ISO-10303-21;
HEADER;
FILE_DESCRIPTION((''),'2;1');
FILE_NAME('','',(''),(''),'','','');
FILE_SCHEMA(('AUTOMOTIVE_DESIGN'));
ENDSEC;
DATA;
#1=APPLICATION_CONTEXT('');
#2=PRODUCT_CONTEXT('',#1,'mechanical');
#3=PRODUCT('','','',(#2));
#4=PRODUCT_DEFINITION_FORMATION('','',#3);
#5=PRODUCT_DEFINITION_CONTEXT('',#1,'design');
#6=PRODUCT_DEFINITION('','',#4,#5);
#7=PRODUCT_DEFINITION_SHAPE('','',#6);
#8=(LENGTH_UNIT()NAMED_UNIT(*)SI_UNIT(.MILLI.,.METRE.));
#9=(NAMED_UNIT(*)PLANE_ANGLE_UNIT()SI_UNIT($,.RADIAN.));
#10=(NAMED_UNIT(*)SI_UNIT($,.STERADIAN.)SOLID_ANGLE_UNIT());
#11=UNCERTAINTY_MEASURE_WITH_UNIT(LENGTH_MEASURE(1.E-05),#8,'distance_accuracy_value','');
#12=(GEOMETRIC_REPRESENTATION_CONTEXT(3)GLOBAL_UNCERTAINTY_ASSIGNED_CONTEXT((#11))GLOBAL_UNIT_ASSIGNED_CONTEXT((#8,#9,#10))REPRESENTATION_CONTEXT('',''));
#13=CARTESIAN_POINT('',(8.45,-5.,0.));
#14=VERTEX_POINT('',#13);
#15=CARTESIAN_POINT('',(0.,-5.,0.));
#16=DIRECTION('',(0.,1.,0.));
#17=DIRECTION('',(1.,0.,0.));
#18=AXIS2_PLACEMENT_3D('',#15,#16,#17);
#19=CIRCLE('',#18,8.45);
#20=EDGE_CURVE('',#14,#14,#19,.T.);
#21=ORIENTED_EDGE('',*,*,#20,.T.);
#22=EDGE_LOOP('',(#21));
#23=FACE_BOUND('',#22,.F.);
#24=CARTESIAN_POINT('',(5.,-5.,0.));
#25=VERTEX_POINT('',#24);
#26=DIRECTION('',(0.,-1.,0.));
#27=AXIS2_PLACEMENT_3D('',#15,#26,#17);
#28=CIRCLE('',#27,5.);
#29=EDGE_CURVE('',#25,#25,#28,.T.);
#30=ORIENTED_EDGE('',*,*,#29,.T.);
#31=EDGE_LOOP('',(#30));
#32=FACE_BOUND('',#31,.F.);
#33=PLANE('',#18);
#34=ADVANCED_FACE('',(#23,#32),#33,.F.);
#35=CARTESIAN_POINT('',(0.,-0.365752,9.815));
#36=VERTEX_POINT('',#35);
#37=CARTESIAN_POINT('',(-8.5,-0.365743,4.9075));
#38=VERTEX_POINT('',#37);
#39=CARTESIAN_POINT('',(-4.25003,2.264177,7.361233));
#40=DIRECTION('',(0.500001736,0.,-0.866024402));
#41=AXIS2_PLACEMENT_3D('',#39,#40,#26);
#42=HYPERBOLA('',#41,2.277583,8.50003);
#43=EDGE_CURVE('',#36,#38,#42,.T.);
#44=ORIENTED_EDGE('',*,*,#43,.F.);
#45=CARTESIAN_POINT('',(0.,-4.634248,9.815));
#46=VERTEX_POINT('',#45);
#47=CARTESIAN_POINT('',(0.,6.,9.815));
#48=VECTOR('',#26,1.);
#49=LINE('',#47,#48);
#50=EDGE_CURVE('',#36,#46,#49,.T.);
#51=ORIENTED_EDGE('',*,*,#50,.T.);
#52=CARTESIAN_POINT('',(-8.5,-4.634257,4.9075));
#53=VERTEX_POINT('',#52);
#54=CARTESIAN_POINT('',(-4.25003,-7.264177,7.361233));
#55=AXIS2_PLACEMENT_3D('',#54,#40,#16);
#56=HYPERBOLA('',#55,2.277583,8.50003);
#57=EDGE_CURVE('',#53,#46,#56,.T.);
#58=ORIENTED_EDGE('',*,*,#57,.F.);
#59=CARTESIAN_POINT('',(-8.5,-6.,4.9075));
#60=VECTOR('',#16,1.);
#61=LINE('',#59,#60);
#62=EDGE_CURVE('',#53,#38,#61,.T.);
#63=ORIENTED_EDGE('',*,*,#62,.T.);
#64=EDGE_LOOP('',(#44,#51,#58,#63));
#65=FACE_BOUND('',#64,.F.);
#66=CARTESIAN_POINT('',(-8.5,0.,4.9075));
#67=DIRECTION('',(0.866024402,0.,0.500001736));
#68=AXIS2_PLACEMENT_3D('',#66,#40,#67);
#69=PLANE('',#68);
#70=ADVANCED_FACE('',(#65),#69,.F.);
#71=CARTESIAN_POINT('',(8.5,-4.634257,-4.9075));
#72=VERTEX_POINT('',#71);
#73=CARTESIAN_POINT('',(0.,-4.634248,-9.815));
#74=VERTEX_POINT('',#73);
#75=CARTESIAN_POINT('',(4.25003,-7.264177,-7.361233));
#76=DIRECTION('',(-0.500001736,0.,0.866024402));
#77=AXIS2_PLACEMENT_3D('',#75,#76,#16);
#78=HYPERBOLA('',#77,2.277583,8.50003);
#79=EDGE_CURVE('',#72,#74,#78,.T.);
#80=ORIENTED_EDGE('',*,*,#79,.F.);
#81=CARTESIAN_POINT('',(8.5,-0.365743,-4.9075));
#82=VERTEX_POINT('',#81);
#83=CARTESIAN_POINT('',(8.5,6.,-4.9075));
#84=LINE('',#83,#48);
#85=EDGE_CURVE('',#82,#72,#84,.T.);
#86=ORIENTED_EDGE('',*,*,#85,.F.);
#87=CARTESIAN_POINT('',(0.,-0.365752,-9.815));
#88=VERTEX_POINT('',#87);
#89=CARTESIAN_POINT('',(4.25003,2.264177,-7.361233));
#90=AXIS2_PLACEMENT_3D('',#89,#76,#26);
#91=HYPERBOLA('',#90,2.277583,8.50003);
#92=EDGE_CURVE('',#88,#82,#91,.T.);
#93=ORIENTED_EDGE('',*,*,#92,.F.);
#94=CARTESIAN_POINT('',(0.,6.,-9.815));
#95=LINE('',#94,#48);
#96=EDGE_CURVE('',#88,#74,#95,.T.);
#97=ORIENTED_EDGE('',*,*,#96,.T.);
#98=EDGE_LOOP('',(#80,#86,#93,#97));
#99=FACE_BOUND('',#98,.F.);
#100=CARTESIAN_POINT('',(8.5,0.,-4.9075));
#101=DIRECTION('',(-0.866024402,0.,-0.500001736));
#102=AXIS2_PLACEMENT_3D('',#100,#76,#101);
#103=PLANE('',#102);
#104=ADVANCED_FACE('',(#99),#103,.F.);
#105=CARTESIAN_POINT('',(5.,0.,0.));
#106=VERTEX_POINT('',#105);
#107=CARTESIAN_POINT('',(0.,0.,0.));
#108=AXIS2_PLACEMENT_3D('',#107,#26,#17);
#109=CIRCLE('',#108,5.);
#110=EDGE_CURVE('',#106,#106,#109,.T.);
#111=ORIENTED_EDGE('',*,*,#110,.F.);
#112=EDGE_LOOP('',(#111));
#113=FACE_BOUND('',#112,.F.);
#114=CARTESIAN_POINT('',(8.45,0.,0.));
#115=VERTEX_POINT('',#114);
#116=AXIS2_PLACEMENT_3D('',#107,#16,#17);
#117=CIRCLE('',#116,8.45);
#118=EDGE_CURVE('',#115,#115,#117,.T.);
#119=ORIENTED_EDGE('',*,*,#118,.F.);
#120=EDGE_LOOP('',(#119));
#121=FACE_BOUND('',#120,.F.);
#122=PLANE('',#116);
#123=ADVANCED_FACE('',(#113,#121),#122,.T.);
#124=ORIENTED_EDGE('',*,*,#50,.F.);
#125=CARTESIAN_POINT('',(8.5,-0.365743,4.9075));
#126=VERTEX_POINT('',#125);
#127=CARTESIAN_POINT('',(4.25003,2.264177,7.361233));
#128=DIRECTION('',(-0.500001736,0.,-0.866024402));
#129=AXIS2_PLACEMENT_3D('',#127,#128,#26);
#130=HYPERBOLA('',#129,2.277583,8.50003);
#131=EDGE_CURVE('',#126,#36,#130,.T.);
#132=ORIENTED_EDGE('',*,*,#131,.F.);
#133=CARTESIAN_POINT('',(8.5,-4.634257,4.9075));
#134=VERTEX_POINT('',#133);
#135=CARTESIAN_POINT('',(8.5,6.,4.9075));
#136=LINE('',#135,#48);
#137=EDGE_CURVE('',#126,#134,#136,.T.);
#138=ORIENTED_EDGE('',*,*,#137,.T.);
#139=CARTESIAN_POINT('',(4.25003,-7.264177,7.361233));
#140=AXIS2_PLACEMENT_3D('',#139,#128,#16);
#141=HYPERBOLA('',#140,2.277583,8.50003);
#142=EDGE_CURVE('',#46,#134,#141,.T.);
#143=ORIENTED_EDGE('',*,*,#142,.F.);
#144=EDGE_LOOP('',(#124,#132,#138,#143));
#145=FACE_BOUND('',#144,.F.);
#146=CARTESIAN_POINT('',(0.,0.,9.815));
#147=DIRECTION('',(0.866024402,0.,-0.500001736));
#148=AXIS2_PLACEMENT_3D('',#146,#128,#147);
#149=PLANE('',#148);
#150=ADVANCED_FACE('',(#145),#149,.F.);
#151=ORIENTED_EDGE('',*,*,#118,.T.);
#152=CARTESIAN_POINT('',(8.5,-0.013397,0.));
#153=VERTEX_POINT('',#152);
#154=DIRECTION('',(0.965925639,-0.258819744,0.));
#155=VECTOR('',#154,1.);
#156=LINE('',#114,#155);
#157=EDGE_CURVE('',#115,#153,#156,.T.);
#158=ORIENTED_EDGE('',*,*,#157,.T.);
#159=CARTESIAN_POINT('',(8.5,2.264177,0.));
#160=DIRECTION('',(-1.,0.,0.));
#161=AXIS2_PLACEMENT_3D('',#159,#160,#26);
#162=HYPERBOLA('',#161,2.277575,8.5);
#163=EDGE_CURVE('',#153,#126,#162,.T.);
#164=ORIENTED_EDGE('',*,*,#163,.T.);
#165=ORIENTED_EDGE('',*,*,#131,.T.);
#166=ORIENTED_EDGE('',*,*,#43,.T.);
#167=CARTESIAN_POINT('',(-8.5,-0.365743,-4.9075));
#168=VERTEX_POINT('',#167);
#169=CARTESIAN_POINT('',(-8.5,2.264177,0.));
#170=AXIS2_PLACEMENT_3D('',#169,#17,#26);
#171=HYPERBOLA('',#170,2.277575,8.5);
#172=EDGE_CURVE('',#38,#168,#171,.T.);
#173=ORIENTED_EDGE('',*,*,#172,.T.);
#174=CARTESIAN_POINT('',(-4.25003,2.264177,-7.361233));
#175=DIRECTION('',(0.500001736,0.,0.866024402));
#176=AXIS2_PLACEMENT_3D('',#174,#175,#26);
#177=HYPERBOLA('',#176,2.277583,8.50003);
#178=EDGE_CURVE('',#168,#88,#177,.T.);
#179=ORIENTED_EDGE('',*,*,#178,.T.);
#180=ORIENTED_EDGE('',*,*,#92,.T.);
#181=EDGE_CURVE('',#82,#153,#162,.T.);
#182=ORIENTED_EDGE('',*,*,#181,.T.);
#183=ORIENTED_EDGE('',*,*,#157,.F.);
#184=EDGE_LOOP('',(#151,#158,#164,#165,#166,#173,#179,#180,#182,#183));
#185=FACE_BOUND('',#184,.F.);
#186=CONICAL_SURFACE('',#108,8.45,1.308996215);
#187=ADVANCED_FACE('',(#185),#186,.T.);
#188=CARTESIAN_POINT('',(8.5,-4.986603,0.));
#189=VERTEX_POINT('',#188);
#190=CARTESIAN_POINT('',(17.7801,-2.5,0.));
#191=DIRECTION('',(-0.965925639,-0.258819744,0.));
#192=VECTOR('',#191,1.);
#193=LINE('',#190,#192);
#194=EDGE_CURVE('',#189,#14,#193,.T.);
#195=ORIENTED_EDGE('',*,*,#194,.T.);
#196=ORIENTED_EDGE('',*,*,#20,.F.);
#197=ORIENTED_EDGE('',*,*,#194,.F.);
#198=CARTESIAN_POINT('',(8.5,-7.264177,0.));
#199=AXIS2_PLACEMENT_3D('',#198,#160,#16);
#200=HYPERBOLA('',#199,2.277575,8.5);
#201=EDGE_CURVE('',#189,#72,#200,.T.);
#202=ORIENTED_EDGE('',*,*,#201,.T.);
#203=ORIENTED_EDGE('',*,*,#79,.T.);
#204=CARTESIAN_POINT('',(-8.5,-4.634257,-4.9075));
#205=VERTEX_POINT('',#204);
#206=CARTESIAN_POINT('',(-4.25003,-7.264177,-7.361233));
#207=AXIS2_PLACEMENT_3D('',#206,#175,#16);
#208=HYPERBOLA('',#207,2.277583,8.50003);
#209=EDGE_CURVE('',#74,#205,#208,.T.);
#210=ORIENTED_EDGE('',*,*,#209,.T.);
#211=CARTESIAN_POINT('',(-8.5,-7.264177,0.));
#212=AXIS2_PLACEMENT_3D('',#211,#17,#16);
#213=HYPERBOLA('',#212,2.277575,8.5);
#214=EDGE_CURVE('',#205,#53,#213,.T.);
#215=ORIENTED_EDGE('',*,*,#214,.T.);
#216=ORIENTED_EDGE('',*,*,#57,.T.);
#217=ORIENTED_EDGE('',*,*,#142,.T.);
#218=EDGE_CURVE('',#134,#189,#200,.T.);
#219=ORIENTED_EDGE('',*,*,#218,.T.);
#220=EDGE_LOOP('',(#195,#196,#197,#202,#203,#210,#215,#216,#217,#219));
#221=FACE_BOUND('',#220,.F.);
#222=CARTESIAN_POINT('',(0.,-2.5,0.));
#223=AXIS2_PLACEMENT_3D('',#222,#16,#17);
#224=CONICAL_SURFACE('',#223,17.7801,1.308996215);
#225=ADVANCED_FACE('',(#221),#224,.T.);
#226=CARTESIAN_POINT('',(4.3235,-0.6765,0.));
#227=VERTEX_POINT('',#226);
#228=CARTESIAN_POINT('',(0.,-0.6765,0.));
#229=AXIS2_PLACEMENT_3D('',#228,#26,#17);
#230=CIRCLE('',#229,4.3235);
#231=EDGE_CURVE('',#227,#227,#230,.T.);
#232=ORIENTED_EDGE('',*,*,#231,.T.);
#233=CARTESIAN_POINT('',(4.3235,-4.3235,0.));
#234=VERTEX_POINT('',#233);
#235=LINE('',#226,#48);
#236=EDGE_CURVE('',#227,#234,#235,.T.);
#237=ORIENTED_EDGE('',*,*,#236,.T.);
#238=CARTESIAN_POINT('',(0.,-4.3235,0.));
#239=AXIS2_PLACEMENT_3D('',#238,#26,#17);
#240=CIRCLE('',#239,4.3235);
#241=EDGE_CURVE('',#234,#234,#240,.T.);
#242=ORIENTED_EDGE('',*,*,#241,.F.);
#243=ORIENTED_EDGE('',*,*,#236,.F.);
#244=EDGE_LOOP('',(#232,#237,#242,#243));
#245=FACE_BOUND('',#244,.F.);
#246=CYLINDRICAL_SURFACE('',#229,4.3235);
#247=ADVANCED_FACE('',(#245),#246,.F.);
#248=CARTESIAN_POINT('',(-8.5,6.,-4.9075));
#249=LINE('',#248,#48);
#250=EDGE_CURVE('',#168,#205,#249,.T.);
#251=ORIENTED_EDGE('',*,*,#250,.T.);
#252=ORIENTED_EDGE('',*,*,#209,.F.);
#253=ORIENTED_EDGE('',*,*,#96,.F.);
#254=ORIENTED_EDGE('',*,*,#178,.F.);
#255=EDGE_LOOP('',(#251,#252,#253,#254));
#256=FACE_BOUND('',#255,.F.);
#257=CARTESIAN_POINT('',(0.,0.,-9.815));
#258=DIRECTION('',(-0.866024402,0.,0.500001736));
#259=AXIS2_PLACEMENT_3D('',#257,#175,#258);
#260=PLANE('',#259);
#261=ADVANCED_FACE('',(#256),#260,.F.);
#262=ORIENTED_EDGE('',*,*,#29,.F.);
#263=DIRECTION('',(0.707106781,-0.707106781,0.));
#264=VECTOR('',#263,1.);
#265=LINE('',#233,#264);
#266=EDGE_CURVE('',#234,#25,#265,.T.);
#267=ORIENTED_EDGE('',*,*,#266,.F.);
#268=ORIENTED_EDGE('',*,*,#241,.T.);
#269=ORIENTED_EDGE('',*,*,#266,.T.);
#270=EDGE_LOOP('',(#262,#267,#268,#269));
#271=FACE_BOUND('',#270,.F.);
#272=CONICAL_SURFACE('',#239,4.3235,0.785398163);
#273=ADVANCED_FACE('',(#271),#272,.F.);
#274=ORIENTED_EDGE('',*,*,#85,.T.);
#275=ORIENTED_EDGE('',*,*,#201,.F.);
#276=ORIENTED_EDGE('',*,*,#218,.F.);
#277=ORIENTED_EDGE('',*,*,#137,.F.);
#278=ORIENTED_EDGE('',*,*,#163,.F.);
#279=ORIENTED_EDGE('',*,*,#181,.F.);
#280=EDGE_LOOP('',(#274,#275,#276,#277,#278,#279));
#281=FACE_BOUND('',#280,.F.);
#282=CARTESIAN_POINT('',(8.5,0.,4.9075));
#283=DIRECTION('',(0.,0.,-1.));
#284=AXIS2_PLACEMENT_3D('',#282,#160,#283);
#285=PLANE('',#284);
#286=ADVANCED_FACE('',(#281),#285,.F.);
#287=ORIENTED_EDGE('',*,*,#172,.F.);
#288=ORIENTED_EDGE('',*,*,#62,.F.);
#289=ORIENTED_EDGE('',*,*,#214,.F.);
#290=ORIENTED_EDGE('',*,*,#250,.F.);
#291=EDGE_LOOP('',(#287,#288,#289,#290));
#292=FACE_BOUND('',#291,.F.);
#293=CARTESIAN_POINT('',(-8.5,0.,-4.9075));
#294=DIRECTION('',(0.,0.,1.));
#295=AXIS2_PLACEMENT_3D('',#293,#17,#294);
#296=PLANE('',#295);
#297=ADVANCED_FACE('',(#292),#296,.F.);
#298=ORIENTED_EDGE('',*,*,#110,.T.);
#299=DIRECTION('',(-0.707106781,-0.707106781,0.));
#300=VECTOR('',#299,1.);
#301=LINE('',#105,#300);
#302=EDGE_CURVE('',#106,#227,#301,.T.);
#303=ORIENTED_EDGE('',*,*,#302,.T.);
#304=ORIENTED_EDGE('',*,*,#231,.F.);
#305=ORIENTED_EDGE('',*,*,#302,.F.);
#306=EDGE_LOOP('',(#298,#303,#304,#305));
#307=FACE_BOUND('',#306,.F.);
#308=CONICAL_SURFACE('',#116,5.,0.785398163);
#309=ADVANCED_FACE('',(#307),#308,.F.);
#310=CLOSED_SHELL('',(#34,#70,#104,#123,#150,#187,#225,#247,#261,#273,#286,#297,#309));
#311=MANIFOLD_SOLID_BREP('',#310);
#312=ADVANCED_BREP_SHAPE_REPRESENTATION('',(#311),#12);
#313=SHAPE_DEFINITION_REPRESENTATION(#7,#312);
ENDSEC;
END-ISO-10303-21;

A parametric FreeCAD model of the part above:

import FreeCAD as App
import Part
import Sketcher
Q = App.Units.Quantity


def add_polygon(sketch, points):
    """Adds a closed chain of lines whose ends are joined by coincident constraints."""
    first, n = sketch.GeometryCount, len(points)
    for a, b in zip(points, points[1:] + points[:1]):
        sketch.addGeometry(Part.LineSegment(App.Vector(*a, 0), App.Vector(*b, 0)), False)
    for i in range(n):
        sketch.addConstraint(Sketcher.Constraint("Coincident", first + i, 2, first + (i + 1) % n, 1))

doc = App.newDocument("Part")
body = doc.addObject("PartDesign::Body", "Body")

# Sketch on XY plane
sketch1 = body.newObject("Sketcher::SketchObject", "Sketch")
sketch1.AttachmentSupport = (doc.getObject("XY_Plane"), [""])
sketch1.MapMode = "FlatFace"
add_polygon(sketch1, [(0, 0), (0, -5), (8.45, -5), (17.7801, -2.5), (8.45, 0)])  # lines 0-4
sketch1.addConstraint([
    Sketcher.Constraint("Vertical", 0),
    Sketcher.Constraint("Horizontal", 1),
    Sketcher.Constraint("Horizontal", 4),
    Sketcher.Constraint("Coincident", 4, 2, -1, 1),
    Sketcher.Constraint("Vertical", 1, 2, 3, 2),
    Sketcher.Constraint("Equal", 2, 3),
    Sketcher.Constraint("DistanceY", 0, 2, 0, 1, Q("5 mm")),
    Sketcher.Constraint("Angle", 2, Q("15 deg")),
    Sketcher.Constraint("DistanceX", 1, 1, 1, 2, Q("8.45 mm")),
])
revolution = body.newObject("PartDesign::Revolution", "Revolution")
revolution.Profile = sketch1
revolution.ReferenceAxis = (sketch1, ["V_Axis"])
revolution.Angle = 360

# Sketch on XZ plane
sketch2 = body.newObject("Sketcher::SketchObject", "Sketch001")
sketch2.AttachmentSupport = (doc.getObject("XZ_Plane"), [""])
sketch2.MapMode = "FlatFace"
add_polygon(sketch2, [(34, -34), (-34, -34), (-34, 34), (34, 34)])  # lines 0-3
add_polygon(sketch2, [(0, 9.815), (-8.5, 4.9075), (-8.5, -4.9075), (0, -9.815), (8.5, -4.9075), (8.5, 4.9075)])  # lines 4-9
sketch2.addConstraint([
    Sketcher.Constraint("Horizontal", 0),
    Sketcher.Constraint("Vertical", 1),
    Sketcher.Constraint("Horizontal", 2),
    Sketcher.Constraint("Vertical", 3),
    Sketcher.Constraint("Vertical", 5),
    Sketcher.Constraint("Vertical", 8),
    Sketcher.Constraint("Symmetric", 0, 2, 2, 2, -1, 1),
    Sketcher.Constraint("Symmetric", 4, 2, 7, 2, -1, 1),
    Sketcher.Constraint("Symmetric", 6, 2, 9, 2, -1, 1),
    Sketcher.Constraint("PointOnObject", 6, 2, -2),
    Sketcher.Constraint("Parallel", 6, 9),
    Sketcher.Constraint("Horizontal", 5, 2, 7, 2),
    Sketcher.Constraint("Equal", 2, 1),
    Sketcher.Constraint("DistanceX", 0, 2, 0, 1, Q("68 mm")),
    Sketcher.Constraint("Angle", 4, Q("-150 deg")),
    Sketcher.Constraint("DistanceX", 5, 2, 7, 2, Q("17 mm")),
    Sketcher.Constraint("DistanceY", 5, 2, 5, 1, Q("9.815 mm")),
])
pocket1 = body.newObject("PartDesign::Pocket", "Pocket")
pocket1.Profile = sketch2
pocket1.Length = 12
pocket1.Midplane = True

# Sketch on XY plane
sketch3 = body.newObject("Sketcher::SketchObject", "Sketch002")
sketch3.AttachmentSupport = (doc.getObject("XY_Plane"), [""])
sketch3.MapMode = "FlatFace"
add_polygon(sketch3, [(0, 0), (0, -5), (5, -5), (4.3235, -4.3235), (4.3235, -0.6765), (5, 0)])  # lines 0-5
sketch3.addConstraint([
    Sketcher.Constraint("Vertical", 0),
    Sketcher.Constraint("Horizontal", 1),
    Sketcher.Constraint("Vertical", 3),
    Sketcher.Constraint("Horizontal", 5),
    Sketcher.Constraint("Coincident", 5, 2, -1, 1),
    Sketcher.Constraint("Perpendicular", 2, 4),
    Sketcher.Constraint("Vertical", 1, 2, 4, 2),
    Sketcher.Constraint("Equal", 5, 0),
    Sketcher.Constraint("Equal", 2, 4),
    Sketcher.Constraint("DistanceX", 1, 1, 1, 2, Q("5 mm")),
    Sketcher.Constraint("DistanceY", 3, 1, 3, 2, Q("3.647 mm")),
])
groove = body.newObject("PartDesign::Groove", "Groove")
groove.Profile = sketch3
groove.ReferenceAxis = (sketch3, ["V_Axis"])
groove.Angle = 360

doc.recompute()
